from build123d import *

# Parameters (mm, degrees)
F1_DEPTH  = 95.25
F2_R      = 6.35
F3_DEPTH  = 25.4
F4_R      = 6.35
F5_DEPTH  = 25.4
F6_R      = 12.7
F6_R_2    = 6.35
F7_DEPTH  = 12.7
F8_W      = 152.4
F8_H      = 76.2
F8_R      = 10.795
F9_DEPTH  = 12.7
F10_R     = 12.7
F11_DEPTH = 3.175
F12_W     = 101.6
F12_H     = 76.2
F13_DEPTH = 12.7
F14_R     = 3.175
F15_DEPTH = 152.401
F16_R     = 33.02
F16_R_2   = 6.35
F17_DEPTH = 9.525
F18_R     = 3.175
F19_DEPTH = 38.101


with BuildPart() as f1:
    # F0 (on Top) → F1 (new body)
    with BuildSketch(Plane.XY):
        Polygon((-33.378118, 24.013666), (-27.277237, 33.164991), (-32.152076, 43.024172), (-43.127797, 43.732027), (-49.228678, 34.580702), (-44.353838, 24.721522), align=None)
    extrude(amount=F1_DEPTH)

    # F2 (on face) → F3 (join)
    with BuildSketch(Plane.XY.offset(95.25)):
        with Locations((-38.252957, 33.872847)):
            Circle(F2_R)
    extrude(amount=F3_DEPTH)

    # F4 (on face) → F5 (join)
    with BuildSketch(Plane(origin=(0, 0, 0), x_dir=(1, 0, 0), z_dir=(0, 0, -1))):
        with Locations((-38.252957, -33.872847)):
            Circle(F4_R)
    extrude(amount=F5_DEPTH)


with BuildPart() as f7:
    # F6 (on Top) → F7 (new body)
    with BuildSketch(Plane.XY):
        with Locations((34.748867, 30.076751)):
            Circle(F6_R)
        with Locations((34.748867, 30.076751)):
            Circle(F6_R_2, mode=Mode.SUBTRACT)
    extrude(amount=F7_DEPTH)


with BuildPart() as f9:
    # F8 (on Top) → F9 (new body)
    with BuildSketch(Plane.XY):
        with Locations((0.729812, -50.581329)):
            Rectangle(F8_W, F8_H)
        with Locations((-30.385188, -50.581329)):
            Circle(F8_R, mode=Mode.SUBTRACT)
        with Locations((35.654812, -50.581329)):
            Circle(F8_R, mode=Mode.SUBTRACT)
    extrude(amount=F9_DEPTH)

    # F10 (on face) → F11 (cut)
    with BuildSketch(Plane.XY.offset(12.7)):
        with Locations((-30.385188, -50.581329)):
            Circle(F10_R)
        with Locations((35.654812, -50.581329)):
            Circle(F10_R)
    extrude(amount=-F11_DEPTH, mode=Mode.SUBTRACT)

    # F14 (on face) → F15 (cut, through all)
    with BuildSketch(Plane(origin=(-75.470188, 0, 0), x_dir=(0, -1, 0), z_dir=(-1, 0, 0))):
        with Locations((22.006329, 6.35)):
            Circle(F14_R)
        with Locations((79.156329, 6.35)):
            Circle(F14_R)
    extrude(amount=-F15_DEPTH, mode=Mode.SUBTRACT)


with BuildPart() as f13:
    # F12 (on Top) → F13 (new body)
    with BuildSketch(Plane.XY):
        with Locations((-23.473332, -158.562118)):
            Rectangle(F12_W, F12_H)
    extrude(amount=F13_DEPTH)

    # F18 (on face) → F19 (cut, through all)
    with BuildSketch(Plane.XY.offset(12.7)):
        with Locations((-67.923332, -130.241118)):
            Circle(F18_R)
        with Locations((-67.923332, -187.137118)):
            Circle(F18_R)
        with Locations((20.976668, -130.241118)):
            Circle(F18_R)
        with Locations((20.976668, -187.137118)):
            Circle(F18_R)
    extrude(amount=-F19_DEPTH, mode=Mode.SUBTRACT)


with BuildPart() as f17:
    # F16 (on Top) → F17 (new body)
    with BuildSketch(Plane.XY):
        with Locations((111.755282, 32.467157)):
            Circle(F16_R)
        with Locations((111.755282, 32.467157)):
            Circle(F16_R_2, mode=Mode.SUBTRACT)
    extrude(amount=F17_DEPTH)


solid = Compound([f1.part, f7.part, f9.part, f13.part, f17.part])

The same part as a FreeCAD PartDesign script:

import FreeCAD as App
import Part
import Sketcher
Q = App.Units.Quantity

doc = App.newDocument("Part")
params = doc.addObject("Spreadsheet::Sheet", "Params")
for row, (alias, value) in enumerate([
    ("pad1_length", "3.75 in"),
    ("sketch2_diameter", "0.5 in"),
    ("pad2_length", "1 in"),
    ("sketch3_diameter", "0.5 in"),
    ("pad3_length", "1 in"),
    ("sketch4_diameter", "1 in"),
    ("sketch4_diameter2", "0.5 in"),
    ("pad4_length", "0.5 in"),
    ("sketch5_diameter", "0.85 in"),
    ("sketch5_width", "6 in"),
    ("sketch5_height", "3 in"),
    ("pad5_length", "0.5 in"),
    ("sketch6_diameter", "1 in"),
    ("pocket1_length", "0.125 in"),
    ("sketch7_diameter", "0.25 in"),
    ("sketch8_width", "4 in"),
    ("sketch8_height", "3 in"),
    ("pad6_length", "0.5 in"),
    ("sketch9_diameter", "0.25 in"),
    ("sketch10_diameter", "2.6 in"),
    ("sketch10_diameter2", "0.5 in"),
    ("pad7_length", "0.375 in"),
], start=1):
    params.set(f"A{row}", alias)
    params.set(f"B{row}", "=" + value)
    params.setAlias(f"B{row}", alias)

body = doc.addObject("PartDesign::Body", "Body")

# Sketch on XY plane
sketch1 = body.newObject("Sketcher::SketchObject", "Sketch")
sketch1.AttachmentSupport = (doc.getObject("XY_Plane"), [""])
sketch1.MapMode = "FlatFace"
sketch1.addGeometry([
    Part.LineSegment(App.Vector(-33.378118, 24.013666, 0), App.Vector(-27.277237, 33.164991, 0)),  # 0
    Part.LineSegment(App.Vector(-27.277237, 33.164991, 0), App.Vector(-32.152076, 43.024172, 0)),  # 1
    Part.LineSegment(App.Vector(-32.152076, 43.024172, 0), App.Vector(-43.127797, 43.732027, 0)),  # 2
    Part.LineSegment(App.Vector(-43.127797, 43.732027, 0), App.Vector(-49.228678, 34.580702, 0)),  # 3
    Part.LineSegment(App.Vector(-49.228678, 34.580702, 0), App.Vector(-44.353838, 24.721522, 0)),  # 4
    Part.LineSegment(App.Vector(-44.353838, 24.721522, 0), App.Vector(-33.378118, 24.013666, 0)),  # 5
], False)
sketch1.addConstraint([
    Sketcher.Constraint("Coincident", 0, 2, 1, 1),
    Sketcher.Constraint("Coincident", 1, 2, 2, 1),
    Sketcher.Constraint("Coincident", 2, 2, 3, 1),
    Sketcher.Constraint("Coincident", 3, 2, 4, 1),
    Sketcher.Constraint("Coincident", 4, 2, 5, 1),
    Sketcher.Constraint("Coincident", 5, 2, 0, 1),
    Sketcher.Constraint("Parallel", 0, 3),
    Sketcher.Constraint("Parallel", 1, 4),
    Sketcher.Constraint("Parallel", 2, 5),
    Sketcher.Constraint("Equal", 0, 1),
    Sketcher.Constraint("Equal", 1, 2),
    Sketcher.Constraint("Equal", 2, 3),
    Sketcher.Constraint("DistanceX", 4, 2, 0, 2, 17.076601),
    Sketcher.Constraint("DistanceY", -1, 1, 0, 2, 33.164991),
    Sketcher.Constraint("DistanceX", 3, 2, -1, 1, 49.228678),
    Sketcher.Constraint("DistanceX", 4, 2, -1, 1, 44.353838),
    Sketcher.Constraint("DistanceY", -1, 1, 4, 2, 24.721522),
    Sketcher.Constraint("DistanceY", 0, 2, 1, 2, 9.859181),
])
pad1 = body.newObject("PartDesign::Pad", "Pad")
pad1.Profile = sketch1
pad1.setExpression("Length", "Params.pad1_length")

# Sketch on XY plane
sketch2 = body.newObject("Sketcher::SketchObject", "Sketch001")
sketch2.AttachmentSupport = (doc.getObject("XY_Plane"), [""])
sketch2.MapMode = "FlatFace"
sketch2.AttachmentOffset = App.Placement(App.Vector(0, 0, 3.75 * 25.4), App.Rotation())
sketch2.addGeometry(Part.Circle(App.Vector(-38.252957, 33.872847, 0), App.Vector(0, 0, 1), 6.35), False)
sketch2.addConstraint([
    Sketcher.Constraint("Diameter", 0, Q("0.5 in")),
    Sketcher.Constraint("DistanceX", 0, 3, -1, 1, 38.252957),
    Sketcher.Constraint("DistanceY", -1, 1, 0, 3, 33.872847),
])
sketch2.setExpression("Constraints[0]", "Params.sketch2_diameter")
pad2 = body.newObject("PartDesign::Pad", "Pad001")
pad2.Profile = sketch2
pad2.setExpression("Length", "Params.pad2_length")

# Sketch on XY plane
sketch3 = body.newObject("Sketcher::SketchObject", "Sketch002")
sketch3.AttachmentSupport = (doc.getObject("XY_Plane"), [""])
sketch3.MapMode = "FlatFace"
sketch3.addGeometry(Part.Circle(App.Vector(-38.252957, 33.872847, 0), App.Vector(0, 0, 1), 6.35), False)
sketch3.addConstraint([
    Sketcher.Constraint("Diameter", 0, Q("0.5 in")),
    Sketcher.Constraint("DistanceX", 0, 3, -1, 1, 38.252957),
    Sketcher.Constraint("DistanceY", -1, 1, 0, 3, 33.872847),
])
sketch3.setExpression("Constraints[0]", "Params.sketch3_diameter")
pad3 = body.newObject("PartDesign::Pad", "Pad002")
pad3.Profile = sketch3
pad3.setExpression("Length", "Params.pad3_length")
pad3.Reversed = True
body2 = doc.addObject("PartDesign::Body", "Body001")

# Sketch on XY plane
sketch4 = body2.newObject("Sketcher::SketchObject", "Sketch003")
sketch4.AttachmentSupport = (doc.getObject("XY_Plane001"), [""])
sketch4.MapMode = "FlatFace"
sketch4.addGeometry([
    Part.Circle(App.Vector(34.748867, 30.076751, 0), App.Vector(0, 0, 1), 12.7),
    Part.Circle(App.Vector(34.748867, 30.076751, 0), App.Vector(0, 0, 1), 6.35),
], False)
sketch4.addConstraint([
    Sketcher.Constraint("Coincident", 1, 3, 0, 3),
    Sketcher.Constraint("Diameter", 0, Q("1 in")),
    Sketcher.Constraint("Diameter", 1, Q("0.5 in")),
    Sketcher.Constraint("DistanceY", -1, 1, 0, 3, 30.076751),
    Sketcher.Constraint("DistanceX", -1, 1, 0, 3, 34.748867),
])
sketch4.setExpression("Constraints[1]", "Params.sketch4_diameter")
sketch4.setExpression("Constraints[2]", "Params.sketch4_diameter2")
pad4 = body2.newObject("PartDesign::Pad", "Pad003")
pad4.Profile = sketch4
pad4.setExpression("Length", "Params.pad4_length")
body3 = doc.addObject("PartDesign::Body", "Body002")

# Sketch on XY plane
sketch5 = body3.newObject("Sketcher::SketchObject", "Sketch004")
sketch5.AttachmentSupport = (doc.getObject("XY_Plane002"), [""])
sketch5.MapMode = "FlatFace"
sketch5.addGeometry([
    Part.LineSegment(App.Vector(-75.470188, -12.481329, 0), App.Vector(-75.470188, -88.681329, 0)),  # 0
    Part.LineSegment(App.Vector(-75.470188, -88.681329, 0), App.Vector(76.929812, -88.681329, 0)),  # 1
    Part.LineSegment(App.Vector(76.929812, -88.681329, 0), App.Vector(76.929812, -12.481329, 0)),  # 2
    Part.LineSegment(App.Vector(76.929812, -12.481329, 0), App.Vector(-75.470188, -12.481329, 0)),  # 3
    Part.Circle(App.Vector(-30.385188, -50.581329, 0), App.Vector(0, 0, 1), 10.795),  # 4
    Part.Circle(App.Vector(35.654812, -50.581329, 0), App.Vector(0, 0, 1), 10.795),  # 5
], False)
sketch5.addConstraint([
    Sketcher.Constraint("Coincident", 0, 2, 1, 1),
    Sketcher.Constraint("Coincident", 1, 2, 2, 1),
    Sketcher.Constraint("Coincident", 2, 2, 3, 1),
    Sketcher.Constraint("Coincident", 3, 2, 0, 1),
    Sketcher.Constraint("Vertical", 0),
    Sketcher.Constraint("Horizontal", 1),
    Sketcher.Constraint("Vertical", 2),
    Sketcher.Constraint("Horizontal", 3),
    Sketcher.Constraint("Equal", 4, 5),
    Sketcher.Constraint("Horizontal", 4, 3, 5, 3),
    Sketcher.Constraint("Diameter", 4, Q("0.85 in")),
    Sketcher.Constraint("DistanceX", 1, 1, 1, 2, Q("6 in")),
    Sketcher.Constraint("DistanceY", 0, 2, 0, 1, Q("3 in")),
    Sketcher.Constraint("DistanceX", 4, 3, 5, 3, Q("2.6 in")),
    Sketcher.Constraint("DistanceY", 0, 2, 4, 3, Q("1.5 in")),
    Sketcher.Constraint("DistanceX", 0, 2, 4, 3, Q("1.775 in")),
    Sketcher.Constraint("DistanceY", 4, 3, -1, 1, 50.581329),
    Sketcher.Constraint("DistanceX", -1, 1, 1, 2, 76.929812),
])
sketch5.setExpression("Constraints[10]", "Params.sketch5_diameter")
sketch5.setExpression("Constraints[11]", "Params.sketch5_width")
sketch5.setExpression("Constraints[12]", "Params.sketch5_height")
pad5 = body3.newObject("PartDesign::Pad", "Pad004")
pad5.Profile = sketch5
pad5.setExpression("Length", "Params.pad5_length")

# Sketch on XY plane
sketch6 = body3.newObject("Sketcher::SketchObject", "Sketch005")
sketch6.AttachmentSupport = (doc.getObject("XY_Plane002"), [""])
sketch6.MapMode = "FlatFace"
sketch6.AttachmentOffset = App.Placement(App.Vector(0, 0, 0.5 * 25.4), App.Rotation())
sketch6.addGeometry([
    Part.Circle(App.Vector(-30.385188, -50.581329, 0), App.Vector(0, 0, 1), 12.7),
    Part.Circle(App.Vector(35.654812, -50.581329, 0), App.Vector(0, 0, 1), 12.7),
], False)
sketch6.addConstraint([
    Sketcher.Constraint("Equal", 0, 1),
    Sketcher.Constraint("Horizontal", 0, 3, 1, 3),
    Sketcher.Constraint("Diameter", 0, Q("1 in")),
    Sketcher.Constraint("DistanceX", 0, 3, 1, 3, Q("2.6 in")),
    Sketcher.Constraint("DistanceY", 0, 3, -1, 1, 50.581329),
    Sketcher.Constraint("DistanceX", 0, 3, -1, 1, 30.385188),
])
sketch6.setExpression("Constraints[2]", "Params.sketch6_diameter")
pocket1 = body3.newObject("PartDesign::Pocket", "Pocket")
pocket1.Profile = sketch6
pocket1.setExpression("Length", "Params.pocket1_length")

# Sketch on YZ plane
sketch7 = body3.newObject("Sketcher::SketchObject", "Sketch006")
sketch7.AttachmentSupport = (doc.getObject("YZ_Plane002"), [""])
sketch7.MapMode = "FlatFace"
sketch7.AttachmentOffset = App.Placement(App.Vector(0, 0, -75.470188), App.Rotation())
sketch7.addGeometry([
    Part.Circle(App.Vector(-22.006329, 6.35, 0), App.Vector(0, 0, 1), 3.175),
    Part.Circle(App.Vector(-79.156329, 6.35, 0), App.Vector(0, 0, 1), 3.175),
], False)
sketch7.addConstraint([
    Sketcher.Constraint("Equal", 0, 1),
    Sketcher.Constraint("Horizontal", 0, 3, 1, 3),
    Sketcher.Constraint("Diameter", 0, Q("0.25 in")),
    Sketcher.Constraint("DistanceY", -1, 1, 0, 3, Q("0.25 in")),
    Sketcher.Constraint("DistanceX", 1, 3, 0, 3, Q("2.25 in")),
    Sketcher.Constraint("DistanceX", 0, 3, -1, 1, 22.006329),
])
sketch7.setExpression("Constraints[2]", "Params.sketch7_diameter")
pocket2 = body3.newObject("PartDesign::Pocket", "Pocket001")
pocket2.Profile = sketch7
pocket2.Type = "ThroughAll"
pocket2.Reversed = True
body4 = doc.addObject("PartDesign::Body", "Body003")

# Sketch on XY plane
sketch8 = body4.newObject("Sketcher::SketchObject", "Sketch007")
sketch8.AttachmentSupport = (doc.getObject("XY_Plane003"), [""])
sketch8.MapMode = "FlatFace"
sketch8.addGeometry([
    Part.LineSegment(App.Vector(-74.273332, -120.462118, 0), App.Vector(-74.273332, -196.662118, 0)),
    Part.LineSegment(App.Vector(-74.273332, -196.662118, 0), App.Vector(27.326668, -196.662118, 0)),
    Part.LineSegment(App.Vector(27.326668, -196.662118, 0), App.Vector(27.326668, -120.462118, 0)),
    Part.LineSegment(App.Vector(27.326668, -120.462118, 0), App.Vector(-74.273332, -120.462118, 0)),
], False)
sketch8.addConstraint([
    Sketcher.Constraint("Coincident", 0, 2, 1, 1),
    Sketcher.Constraint("Coincident", 1, 2, 2, 1),
    Sketcher.Constraint("Coincident", 2, 2, 3, 1),
    Sketcher.Constraint("Coincident", 3, 2, 0, 1),
    Sketcher.Constraint("Vertical", 0),
    Sketcher.Constraint("Horizontal", 1),
    Sketcher.Constraint("Vertical", 2),
    Sketcher.Constraint("Horizontal", 3),
    Sketcher.Constraint("DistanceX", 1, 1, 1, 2, Q("4 in")),
    Sketcher.Constraint("DistanceY", 0, 2, 0, 1, Q("3 in")),
    Sketcher.Constraint("DistanceX", 0, 2, -1, 1, 74.273332),
    Sketcher.Constraint("DistanceY", 0, 2, -1, 1, 196.662118),
])
sketch8.setExpression("Constraints[8]", "Params.sketch8_width")
sketch8.setExpression("Constraints[9]", "Params.sketch8_height")
pad6 = body4.newObject("PartDesign::Pad", "Pad005")
pad6.Profile = sketch8
pad6.setExpression("Length", "Params.pad6_length")

# Sketch on XY plane
sketch9 = body4.newObject("Sketcher::SketchObject", "Sketch008")
sketch9.AttachmentSupport = (doc.getObject("XY_Plane003"), [""])
sketch9.MapMode = "FlatFace"
sketch9.AttachmentOffset = App.Placement(App.Vector(0, 0, 0.5 * 25.4), App.Rotation())
sketch9.addGeometry([
    Part.Circle(App.Vector(-67.923332, -130.241118, 0), App.Vector(0, 0, 1), 3.175),
    Part.Circle(App.Vector(-67.923332, -187.137118, 0), App.Vector(0, 0, 1), 3.175),
    Part.Circle(App.Vector(20.976668, -130.241118, 0), App.Vector(0, 0, 1), 3.175),
    Part.Circle(App.Vector(20.976668, -187.137118, 0), App.Vector(0, 0, 1), 3.175),
], False)
sketch9.addConstraint([
    Sketcher.Constraint("Equal", 0, 1),
    Sketcher.Constraint("Equal", 1, 2),
    Sketcher.Constraint("Equal", 2, 3),
    Sketcher.Constraint("Horizontal", 0, 3, 2, 3),
    Sketcher.Constraint("Horizontal", 1, 3, 3, 3),
    Sketcher.Constraint("Vertical", 0, 3, 1, 3),
    Sketcher.Constraint("Vertical", 2, 3, 3, 3),
    Sketcher.Constraint("Diameter", 0, Q("0.25 in")),
    Sketcher.Constraint("DistanceX", 0, 3, 2, 3, Q("3.5 in")),
    Sketcher.Constraint("DistanceY", 1, 3, 0, 3, Q("2.24 in")),
    Sketcher.Constraint("DistanceX", 0, 3, -1, 1, 67.923332),
    Sketcher.Constraint("DistanceY", 0, 3, -1, 1, 130.241118),
])
sketch9.setExpression("Constraints[7]", "Params.sketch9_diameter")
pocket3 = body4.newObject("PartDesign::Pocket", "Pocket002")
pocket3.Profile = sketch9
pocket3.Type = "ThroughAll"
body5 = doc.addObject("PartDesign::Body", "Body004")

# Sketch on XY plane
sketch10 = body5.newObject("Sketcher::SketchObject", "Sketch009")
sketch10.AttachmentSupport = (doc.getObject("XY_Plane004"), [""])
sketch10.MapMode = "FlatFace"
sketch10.addGeometry([
    Part.Circle(App.Vector(111.755282, 32.467157, 0), App.Vector(0, 0, 1), 33.02),
    Part.Circle(App.Vector(111.755282, 32.467157, 0), App.Vector(0, 0, 1), 6.35),
], False)
sketch10.addConstraint([
    Sketcher.Constraint("Coincident", 1, 3, 0, 3),
    Sketcher.Constraint("Diameter", 0, Q("2.6 in")),
    Sketcher.Constraint("Diameter", 1, Q("0.5 in")),
    Sketcher.Constraint("DistanceX", -1, 1, 0, 3, 111.755282),
    Sketcher.Constraint("DistanceY", -1, 1, 0, 3, 32.467157),
])
sketch10.setExpression("Constraints[1]", "Params.sketch10_diameter")
sketch10.setExpression("Constraints[2]", "Params.sketch10_diameter2")
pad7 = body5.newObject("PartDesign::Pad", "Pad006")
pad7.Profile = sketch10
pad7.setExpression("Length", "Params.pad7_length")

doc.recompute()
